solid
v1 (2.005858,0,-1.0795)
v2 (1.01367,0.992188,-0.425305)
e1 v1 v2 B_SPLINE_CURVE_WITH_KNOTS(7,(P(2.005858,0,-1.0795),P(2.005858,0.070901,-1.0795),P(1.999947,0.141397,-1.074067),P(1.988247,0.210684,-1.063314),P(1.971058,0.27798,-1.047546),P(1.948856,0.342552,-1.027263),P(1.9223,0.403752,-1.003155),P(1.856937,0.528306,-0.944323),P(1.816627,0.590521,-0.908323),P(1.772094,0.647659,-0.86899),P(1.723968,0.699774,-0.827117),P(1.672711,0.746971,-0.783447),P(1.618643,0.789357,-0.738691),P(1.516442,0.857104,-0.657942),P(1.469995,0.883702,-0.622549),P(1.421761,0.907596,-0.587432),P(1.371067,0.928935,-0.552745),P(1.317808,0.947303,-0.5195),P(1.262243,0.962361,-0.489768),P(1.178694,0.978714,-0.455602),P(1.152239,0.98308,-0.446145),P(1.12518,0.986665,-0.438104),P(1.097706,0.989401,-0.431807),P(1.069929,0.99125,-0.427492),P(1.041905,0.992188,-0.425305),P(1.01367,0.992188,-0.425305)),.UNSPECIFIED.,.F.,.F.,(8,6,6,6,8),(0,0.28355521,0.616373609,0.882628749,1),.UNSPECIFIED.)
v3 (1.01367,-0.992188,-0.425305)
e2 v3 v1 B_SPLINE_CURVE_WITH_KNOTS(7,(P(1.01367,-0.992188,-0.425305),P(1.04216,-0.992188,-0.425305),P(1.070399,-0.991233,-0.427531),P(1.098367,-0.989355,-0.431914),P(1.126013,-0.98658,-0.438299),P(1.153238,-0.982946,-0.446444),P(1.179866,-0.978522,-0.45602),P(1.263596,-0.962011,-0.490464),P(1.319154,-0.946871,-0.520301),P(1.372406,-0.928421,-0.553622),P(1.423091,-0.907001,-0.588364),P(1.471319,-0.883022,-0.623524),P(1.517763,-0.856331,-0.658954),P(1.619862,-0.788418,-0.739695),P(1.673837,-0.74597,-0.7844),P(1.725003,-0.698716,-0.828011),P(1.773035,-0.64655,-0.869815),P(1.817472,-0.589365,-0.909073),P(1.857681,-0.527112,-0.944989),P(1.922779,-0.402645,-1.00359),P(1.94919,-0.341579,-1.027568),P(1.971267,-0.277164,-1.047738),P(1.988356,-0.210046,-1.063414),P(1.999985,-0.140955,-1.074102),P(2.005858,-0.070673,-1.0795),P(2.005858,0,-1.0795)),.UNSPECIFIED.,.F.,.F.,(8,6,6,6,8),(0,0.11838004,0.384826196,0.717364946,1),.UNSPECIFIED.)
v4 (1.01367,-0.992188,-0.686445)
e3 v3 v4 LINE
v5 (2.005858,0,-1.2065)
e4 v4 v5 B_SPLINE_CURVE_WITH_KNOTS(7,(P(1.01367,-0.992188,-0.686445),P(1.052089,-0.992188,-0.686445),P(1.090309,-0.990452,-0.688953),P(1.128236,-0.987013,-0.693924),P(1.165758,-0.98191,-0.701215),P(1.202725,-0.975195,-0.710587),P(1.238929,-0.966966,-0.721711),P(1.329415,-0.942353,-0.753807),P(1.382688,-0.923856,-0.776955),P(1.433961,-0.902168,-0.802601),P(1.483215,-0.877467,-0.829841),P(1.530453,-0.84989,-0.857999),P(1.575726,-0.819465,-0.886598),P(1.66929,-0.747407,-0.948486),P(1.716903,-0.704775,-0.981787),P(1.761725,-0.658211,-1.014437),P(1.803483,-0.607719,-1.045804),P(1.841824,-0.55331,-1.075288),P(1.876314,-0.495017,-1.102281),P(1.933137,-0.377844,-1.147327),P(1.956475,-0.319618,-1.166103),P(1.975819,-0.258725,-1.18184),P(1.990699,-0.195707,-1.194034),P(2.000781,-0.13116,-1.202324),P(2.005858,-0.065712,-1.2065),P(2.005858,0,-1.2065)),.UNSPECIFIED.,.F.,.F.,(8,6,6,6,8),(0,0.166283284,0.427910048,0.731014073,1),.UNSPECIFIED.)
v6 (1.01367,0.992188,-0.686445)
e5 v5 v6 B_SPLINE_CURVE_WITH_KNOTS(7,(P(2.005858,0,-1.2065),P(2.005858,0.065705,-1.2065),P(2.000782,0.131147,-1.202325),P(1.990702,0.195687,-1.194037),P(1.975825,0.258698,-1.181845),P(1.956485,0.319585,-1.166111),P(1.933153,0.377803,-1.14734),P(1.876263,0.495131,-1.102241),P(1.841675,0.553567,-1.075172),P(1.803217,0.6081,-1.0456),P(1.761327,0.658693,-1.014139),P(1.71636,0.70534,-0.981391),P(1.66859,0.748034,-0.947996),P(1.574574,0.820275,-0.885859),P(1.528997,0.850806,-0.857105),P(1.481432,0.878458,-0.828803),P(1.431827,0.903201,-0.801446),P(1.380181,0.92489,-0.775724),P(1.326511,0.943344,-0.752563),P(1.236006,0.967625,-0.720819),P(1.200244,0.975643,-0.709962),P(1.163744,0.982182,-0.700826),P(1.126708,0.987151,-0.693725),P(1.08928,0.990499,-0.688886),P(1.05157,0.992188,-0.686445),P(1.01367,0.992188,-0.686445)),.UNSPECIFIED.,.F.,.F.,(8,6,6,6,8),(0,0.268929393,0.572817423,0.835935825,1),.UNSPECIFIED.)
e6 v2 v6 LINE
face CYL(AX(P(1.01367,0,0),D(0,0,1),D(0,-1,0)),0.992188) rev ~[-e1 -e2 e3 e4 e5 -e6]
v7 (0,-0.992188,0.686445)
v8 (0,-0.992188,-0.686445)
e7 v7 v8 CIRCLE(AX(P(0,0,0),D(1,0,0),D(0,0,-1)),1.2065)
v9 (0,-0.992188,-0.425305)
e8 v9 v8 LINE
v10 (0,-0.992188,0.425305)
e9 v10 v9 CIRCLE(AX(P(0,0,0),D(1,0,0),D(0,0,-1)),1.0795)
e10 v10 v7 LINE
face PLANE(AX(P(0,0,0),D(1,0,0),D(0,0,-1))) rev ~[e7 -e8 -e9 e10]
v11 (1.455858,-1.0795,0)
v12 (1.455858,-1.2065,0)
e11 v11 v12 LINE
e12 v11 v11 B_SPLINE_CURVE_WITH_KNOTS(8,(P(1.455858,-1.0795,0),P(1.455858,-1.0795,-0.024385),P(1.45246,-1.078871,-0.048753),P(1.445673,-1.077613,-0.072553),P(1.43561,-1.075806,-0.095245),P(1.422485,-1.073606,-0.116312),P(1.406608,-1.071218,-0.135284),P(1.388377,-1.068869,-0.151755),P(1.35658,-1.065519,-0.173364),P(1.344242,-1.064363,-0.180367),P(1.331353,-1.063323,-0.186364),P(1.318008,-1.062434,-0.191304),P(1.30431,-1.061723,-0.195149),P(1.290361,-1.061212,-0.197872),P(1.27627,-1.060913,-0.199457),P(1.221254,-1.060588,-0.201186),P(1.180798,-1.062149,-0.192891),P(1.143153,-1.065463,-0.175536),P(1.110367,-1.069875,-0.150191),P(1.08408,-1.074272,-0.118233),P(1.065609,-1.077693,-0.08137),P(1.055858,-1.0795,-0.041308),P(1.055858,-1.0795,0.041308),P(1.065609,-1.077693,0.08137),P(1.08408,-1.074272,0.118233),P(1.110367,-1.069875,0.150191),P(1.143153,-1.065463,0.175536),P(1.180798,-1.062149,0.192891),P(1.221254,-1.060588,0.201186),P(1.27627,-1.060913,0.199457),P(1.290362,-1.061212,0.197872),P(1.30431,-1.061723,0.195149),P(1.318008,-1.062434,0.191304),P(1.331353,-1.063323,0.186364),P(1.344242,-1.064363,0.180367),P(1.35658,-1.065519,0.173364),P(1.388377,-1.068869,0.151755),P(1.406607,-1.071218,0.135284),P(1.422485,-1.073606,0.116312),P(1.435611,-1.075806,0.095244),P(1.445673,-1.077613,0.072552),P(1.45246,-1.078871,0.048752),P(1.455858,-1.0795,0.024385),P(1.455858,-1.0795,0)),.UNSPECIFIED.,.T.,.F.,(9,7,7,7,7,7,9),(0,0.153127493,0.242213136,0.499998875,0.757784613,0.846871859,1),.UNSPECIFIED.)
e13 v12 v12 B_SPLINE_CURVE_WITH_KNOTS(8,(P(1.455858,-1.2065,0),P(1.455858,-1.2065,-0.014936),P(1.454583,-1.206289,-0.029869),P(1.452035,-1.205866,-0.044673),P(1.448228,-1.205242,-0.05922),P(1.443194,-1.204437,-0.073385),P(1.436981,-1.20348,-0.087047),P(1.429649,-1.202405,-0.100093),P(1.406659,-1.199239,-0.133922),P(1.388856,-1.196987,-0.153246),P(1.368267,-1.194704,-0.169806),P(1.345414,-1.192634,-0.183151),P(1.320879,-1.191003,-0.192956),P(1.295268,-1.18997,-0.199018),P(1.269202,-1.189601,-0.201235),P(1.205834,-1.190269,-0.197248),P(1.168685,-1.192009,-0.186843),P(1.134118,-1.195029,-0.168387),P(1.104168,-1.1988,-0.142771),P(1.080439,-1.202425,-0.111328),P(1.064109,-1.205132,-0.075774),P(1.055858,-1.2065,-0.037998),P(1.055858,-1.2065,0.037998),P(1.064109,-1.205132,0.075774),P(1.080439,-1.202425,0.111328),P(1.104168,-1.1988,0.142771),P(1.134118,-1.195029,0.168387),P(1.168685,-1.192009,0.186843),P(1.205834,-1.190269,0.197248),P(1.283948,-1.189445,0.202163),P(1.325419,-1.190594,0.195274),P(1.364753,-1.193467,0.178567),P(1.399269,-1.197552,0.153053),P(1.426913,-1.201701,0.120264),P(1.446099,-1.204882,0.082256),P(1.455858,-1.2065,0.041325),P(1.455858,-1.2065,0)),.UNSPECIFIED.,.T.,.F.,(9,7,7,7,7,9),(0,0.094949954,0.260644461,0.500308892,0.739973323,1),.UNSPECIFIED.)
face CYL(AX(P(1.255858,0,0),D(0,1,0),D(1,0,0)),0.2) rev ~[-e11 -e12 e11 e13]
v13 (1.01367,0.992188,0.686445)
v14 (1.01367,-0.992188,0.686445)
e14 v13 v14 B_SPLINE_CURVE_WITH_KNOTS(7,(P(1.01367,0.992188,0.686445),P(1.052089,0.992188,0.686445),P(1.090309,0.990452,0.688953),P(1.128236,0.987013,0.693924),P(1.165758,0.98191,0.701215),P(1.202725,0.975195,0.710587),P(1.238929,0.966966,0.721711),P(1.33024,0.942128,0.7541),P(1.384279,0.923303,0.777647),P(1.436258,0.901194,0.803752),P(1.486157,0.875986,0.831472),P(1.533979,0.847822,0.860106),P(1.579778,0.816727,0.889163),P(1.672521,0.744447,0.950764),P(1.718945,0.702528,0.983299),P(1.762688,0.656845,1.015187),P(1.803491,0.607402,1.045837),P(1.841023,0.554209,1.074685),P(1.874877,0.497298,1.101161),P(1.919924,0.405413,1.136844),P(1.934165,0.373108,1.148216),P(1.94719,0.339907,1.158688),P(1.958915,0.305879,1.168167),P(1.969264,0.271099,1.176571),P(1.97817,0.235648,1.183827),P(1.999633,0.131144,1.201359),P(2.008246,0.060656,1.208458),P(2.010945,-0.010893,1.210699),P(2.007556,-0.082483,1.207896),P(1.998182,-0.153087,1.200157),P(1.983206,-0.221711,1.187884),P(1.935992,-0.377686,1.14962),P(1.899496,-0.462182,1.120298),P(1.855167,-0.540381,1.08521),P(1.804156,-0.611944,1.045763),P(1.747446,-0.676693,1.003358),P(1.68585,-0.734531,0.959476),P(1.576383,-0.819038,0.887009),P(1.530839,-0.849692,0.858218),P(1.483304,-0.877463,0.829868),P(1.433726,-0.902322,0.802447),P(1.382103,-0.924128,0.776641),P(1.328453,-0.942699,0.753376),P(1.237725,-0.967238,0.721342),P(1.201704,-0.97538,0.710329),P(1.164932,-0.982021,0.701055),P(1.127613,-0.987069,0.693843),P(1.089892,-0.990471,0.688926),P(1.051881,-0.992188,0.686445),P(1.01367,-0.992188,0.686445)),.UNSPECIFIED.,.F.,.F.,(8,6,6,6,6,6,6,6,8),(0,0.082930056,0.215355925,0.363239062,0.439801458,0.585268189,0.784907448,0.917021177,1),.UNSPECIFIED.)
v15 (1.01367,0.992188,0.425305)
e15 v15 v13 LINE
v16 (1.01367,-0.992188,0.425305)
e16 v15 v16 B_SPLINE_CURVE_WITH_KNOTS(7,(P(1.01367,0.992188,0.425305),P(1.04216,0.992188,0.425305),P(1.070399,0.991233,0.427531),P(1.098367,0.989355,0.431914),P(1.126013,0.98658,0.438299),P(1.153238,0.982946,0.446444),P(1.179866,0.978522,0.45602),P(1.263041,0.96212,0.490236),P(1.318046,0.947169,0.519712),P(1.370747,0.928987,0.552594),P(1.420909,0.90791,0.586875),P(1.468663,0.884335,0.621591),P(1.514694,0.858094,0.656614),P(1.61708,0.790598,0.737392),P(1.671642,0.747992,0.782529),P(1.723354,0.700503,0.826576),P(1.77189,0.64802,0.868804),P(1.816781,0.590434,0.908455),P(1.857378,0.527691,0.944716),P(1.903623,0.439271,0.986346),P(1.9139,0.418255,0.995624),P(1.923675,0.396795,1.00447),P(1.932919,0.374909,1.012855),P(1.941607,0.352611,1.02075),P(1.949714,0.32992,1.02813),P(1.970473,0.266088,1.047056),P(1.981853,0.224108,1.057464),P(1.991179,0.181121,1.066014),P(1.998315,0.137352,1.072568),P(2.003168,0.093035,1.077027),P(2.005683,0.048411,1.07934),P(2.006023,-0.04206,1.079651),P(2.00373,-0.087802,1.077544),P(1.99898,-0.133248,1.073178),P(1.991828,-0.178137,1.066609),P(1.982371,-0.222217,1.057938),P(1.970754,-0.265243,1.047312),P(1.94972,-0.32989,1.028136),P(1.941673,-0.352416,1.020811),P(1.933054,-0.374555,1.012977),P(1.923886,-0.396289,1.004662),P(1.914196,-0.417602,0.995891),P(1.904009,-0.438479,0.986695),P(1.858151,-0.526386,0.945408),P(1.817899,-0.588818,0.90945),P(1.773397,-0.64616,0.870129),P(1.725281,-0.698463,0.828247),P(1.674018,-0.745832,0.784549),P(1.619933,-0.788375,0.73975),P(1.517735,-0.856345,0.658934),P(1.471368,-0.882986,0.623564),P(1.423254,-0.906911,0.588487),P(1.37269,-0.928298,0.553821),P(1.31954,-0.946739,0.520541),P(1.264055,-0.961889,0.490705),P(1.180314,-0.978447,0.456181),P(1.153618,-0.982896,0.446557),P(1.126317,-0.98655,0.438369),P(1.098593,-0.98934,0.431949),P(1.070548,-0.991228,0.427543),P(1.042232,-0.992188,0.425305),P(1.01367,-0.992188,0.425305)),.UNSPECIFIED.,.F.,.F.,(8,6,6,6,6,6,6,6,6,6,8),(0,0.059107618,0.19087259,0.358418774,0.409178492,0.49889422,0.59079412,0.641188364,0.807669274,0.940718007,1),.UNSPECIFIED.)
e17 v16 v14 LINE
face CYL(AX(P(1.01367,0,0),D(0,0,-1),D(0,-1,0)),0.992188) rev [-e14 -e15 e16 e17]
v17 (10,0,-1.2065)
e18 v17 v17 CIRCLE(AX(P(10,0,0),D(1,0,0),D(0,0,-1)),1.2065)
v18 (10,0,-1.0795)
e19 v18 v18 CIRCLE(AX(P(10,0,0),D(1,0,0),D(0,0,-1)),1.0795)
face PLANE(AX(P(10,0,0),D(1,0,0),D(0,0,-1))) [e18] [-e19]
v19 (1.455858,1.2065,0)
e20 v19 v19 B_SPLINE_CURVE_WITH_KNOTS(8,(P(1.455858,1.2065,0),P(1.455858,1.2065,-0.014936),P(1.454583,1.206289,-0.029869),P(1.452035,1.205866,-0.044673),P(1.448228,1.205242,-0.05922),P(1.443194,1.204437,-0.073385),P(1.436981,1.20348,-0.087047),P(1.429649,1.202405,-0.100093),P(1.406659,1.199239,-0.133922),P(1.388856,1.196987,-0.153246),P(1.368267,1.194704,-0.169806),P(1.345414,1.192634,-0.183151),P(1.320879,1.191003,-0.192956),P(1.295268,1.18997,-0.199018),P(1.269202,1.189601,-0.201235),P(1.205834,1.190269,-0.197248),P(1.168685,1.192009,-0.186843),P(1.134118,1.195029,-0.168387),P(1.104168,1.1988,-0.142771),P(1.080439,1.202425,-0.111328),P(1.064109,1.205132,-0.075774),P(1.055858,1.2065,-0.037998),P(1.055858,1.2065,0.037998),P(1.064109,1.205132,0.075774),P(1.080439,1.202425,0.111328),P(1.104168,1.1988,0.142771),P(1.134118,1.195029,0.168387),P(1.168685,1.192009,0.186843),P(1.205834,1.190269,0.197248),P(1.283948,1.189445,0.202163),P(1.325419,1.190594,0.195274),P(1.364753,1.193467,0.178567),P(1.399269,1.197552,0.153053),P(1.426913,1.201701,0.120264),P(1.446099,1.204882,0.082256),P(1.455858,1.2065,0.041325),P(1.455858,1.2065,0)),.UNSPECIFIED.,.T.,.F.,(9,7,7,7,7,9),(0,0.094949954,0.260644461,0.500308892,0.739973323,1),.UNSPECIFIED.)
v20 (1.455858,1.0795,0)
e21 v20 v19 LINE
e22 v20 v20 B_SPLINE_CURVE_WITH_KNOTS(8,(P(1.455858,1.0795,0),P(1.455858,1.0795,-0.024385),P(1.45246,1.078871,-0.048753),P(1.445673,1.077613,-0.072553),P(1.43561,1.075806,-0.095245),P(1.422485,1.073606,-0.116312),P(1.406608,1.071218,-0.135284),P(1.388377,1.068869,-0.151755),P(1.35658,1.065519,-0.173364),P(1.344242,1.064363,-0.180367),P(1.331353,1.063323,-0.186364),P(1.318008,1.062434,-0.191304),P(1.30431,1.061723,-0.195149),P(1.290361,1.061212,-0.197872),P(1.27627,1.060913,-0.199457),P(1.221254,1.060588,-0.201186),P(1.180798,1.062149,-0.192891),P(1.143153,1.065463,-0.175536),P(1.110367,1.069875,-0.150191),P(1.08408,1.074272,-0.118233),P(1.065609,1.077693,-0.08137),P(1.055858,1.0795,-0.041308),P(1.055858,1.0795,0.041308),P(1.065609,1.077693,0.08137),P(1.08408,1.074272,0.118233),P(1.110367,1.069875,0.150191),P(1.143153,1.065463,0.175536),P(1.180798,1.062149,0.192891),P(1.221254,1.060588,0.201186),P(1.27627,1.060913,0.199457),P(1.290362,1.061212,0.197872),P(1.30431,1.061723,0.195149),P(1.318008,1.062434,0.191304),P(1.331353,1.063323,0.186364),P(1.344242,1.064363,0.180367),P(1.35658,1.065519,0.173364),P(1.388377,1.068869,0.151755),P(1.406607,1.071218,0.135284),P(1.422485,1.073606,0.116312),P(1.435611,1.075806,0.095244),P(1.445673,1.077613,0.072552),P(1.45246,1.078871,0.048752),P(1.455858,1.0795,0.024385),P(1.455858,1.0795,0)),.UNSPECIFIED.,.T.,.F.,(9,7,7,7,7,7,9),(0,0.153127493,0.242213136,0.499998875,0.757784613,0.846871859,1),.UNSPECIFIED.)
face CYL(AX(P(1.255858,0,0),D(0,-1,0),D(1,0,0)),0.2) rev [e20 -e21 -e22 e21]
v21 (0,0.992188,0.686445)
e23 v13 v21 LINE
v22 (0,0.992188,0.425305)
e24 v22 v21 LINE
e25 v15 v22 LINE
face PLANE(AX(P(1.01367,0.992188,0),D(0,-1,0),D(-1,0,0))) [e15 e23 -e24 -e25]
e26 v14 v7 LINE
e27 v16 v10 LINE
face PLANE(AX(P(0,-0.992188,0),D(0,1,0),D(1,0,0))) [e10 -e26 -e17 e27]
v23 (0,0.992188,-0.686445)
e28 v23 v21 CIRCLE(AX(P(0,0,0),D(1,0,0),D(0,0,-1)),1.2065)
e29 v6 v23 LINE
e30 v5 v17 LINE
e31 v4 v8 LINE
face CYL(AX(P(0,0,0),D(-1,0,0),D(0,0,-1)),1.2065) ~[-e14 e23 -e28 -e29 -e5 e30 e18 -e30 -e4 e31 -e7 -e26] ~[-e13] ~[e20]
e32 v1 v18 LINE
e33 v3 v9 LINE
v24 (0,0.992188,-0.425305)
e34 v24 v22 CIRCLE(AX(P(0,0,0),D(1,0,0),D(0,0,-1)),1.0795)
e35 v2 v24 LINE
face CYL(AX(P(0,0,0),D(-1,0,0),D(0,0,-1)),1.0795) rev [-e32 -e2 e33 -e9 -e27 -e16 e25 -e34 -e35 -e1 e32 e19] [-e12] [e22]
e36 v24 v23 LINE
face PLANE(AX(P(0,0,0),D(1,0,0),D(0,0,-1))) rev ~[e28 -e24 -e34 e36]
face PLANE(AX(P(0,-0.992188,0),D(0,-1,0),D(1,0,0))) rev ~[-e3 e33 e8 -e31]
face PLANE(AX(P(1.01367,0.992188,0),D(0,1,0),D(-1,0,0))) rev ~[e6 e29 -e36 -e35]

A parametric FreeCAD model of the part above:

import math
import FreeCAD as App
import Part
import Sketcher

V = App.Vector
Q = App.Units.Quantity

doc = App.newDocument("Part")
body = doc.addObject("PartDesign::Body", "Body")

# Sketch on YZ plane
sketch1 = body.newObject("Sketcher::SketchObject", "Sketch")
sketch1.AttachmentSupport = (doc.getObject("YZ_Plane"), [""])
sketch1.MapMode = "FlatFace"
sketch1.addGeometry([
    Part.Circle(V(0, 0, 0), V(0, 0, 1), 1.2),
    Part.Circle(V(0, 0, 0), V(0, 0, 1), 1.1),
], False)
sketch1.addConstraint([
    Sketcher.Constraint("Coincident", 0, 3, -1, 1),
    Sketcher.Constraint("Coincident", 1, 3, -1, 1),
    Sketcher.Constraint("Diameter", 0, Q("0.095 in")),
    Sketcher.Constraint("Diameter", 1, Q("0.085 in")),
])
pad1 = body.newObject("PartDesign::Pad", "Pad")
pad1.Profile = sketch1
pad1.Length = 10

# Sketch on XY plane
sketch2 = body.newObject("Sketcher::SketchObject", "Sketch001")
sketch2.AttachmentSupport = (doc.getObject("XY_Plane"), [""])
sketch2.MapMode = "FlatFace"
sketch2.addGeometry([
    Part.LineSegment(V(1, 1, 0), V(0, 1, 0)),
    Part.LineSegment(V(0, 1, 0), V(0, -1, 0)),
    Part.LineSegment(V(0, -1, 0), V(1, -1, 0)),
    Part.ArcOfCircle(Part.Circle(V(1, 0, 0), V(0, 0, 1), 1), math.radians(-90), math.radians(90)),
], False)
sketch2.addConstraint([
    Sketcher.Constraint("Coincident", 0, 2, 1, 1),
    Sketcher.Constraint("Coincident", 1, 2, 2, 1),
    Sketcher.Constraint("Tangent", 2, 2, 3, 1),
    Sketcher.Constraint("Tangent", 3, 2, 0, 1),
    Sketcher.Constraint("Horizontal", 0),
    Sketcher.Constraint("Vertical", 1),
    Sketcher.Constraint("Horizontal", 2),
    Sketcher.Constraint("Symmetric", 0, 2, 1, 2, -1, 1),
    Sketcher.Constraint("DistanceY", 1, 2, 1, 1, Q("0.078125 in")),
    Sketcher.Constraint("DistanceX", 0, 2, 0, 1, 1.01367),
])
pocket1 = body.newObject("PartDesign::Pocket", "Pocket")
pocket1.Profile = sketch2
pocket1.Type = "ThroughAll"
pocket1.Midplane = True

# Sketch on XZ plane
sketch3 = body.newObject("Sketcher::SketchObject", "Sketch002")
sketch3.AttachmentSupport = (doc.getObject("XZ_Plane"), [""])
sketch3.MapMode = "FlatFace"
sketch3.addGeometry(Part.Circle(V(1.26, 0, 0), V(0, 0, 1), 0.2), False)
sketch3.addConstraint([
    Sketcher.Constraint("PointOnObject", 0, 3, -1),
    Sketcher.Constraint("Diameter", 0, 0.4),
    Sketcher.Constraint("DistanceX", -1, 1, 0, 3, 1.255858),
])
pocket2 = body.newObject("PartDesign::Pocket", "Pocket001")
pocket2.Profile = sketch3
pocket2.Type = "ThroughAll"
pocket2.Midplane = True

doc.recompute()
